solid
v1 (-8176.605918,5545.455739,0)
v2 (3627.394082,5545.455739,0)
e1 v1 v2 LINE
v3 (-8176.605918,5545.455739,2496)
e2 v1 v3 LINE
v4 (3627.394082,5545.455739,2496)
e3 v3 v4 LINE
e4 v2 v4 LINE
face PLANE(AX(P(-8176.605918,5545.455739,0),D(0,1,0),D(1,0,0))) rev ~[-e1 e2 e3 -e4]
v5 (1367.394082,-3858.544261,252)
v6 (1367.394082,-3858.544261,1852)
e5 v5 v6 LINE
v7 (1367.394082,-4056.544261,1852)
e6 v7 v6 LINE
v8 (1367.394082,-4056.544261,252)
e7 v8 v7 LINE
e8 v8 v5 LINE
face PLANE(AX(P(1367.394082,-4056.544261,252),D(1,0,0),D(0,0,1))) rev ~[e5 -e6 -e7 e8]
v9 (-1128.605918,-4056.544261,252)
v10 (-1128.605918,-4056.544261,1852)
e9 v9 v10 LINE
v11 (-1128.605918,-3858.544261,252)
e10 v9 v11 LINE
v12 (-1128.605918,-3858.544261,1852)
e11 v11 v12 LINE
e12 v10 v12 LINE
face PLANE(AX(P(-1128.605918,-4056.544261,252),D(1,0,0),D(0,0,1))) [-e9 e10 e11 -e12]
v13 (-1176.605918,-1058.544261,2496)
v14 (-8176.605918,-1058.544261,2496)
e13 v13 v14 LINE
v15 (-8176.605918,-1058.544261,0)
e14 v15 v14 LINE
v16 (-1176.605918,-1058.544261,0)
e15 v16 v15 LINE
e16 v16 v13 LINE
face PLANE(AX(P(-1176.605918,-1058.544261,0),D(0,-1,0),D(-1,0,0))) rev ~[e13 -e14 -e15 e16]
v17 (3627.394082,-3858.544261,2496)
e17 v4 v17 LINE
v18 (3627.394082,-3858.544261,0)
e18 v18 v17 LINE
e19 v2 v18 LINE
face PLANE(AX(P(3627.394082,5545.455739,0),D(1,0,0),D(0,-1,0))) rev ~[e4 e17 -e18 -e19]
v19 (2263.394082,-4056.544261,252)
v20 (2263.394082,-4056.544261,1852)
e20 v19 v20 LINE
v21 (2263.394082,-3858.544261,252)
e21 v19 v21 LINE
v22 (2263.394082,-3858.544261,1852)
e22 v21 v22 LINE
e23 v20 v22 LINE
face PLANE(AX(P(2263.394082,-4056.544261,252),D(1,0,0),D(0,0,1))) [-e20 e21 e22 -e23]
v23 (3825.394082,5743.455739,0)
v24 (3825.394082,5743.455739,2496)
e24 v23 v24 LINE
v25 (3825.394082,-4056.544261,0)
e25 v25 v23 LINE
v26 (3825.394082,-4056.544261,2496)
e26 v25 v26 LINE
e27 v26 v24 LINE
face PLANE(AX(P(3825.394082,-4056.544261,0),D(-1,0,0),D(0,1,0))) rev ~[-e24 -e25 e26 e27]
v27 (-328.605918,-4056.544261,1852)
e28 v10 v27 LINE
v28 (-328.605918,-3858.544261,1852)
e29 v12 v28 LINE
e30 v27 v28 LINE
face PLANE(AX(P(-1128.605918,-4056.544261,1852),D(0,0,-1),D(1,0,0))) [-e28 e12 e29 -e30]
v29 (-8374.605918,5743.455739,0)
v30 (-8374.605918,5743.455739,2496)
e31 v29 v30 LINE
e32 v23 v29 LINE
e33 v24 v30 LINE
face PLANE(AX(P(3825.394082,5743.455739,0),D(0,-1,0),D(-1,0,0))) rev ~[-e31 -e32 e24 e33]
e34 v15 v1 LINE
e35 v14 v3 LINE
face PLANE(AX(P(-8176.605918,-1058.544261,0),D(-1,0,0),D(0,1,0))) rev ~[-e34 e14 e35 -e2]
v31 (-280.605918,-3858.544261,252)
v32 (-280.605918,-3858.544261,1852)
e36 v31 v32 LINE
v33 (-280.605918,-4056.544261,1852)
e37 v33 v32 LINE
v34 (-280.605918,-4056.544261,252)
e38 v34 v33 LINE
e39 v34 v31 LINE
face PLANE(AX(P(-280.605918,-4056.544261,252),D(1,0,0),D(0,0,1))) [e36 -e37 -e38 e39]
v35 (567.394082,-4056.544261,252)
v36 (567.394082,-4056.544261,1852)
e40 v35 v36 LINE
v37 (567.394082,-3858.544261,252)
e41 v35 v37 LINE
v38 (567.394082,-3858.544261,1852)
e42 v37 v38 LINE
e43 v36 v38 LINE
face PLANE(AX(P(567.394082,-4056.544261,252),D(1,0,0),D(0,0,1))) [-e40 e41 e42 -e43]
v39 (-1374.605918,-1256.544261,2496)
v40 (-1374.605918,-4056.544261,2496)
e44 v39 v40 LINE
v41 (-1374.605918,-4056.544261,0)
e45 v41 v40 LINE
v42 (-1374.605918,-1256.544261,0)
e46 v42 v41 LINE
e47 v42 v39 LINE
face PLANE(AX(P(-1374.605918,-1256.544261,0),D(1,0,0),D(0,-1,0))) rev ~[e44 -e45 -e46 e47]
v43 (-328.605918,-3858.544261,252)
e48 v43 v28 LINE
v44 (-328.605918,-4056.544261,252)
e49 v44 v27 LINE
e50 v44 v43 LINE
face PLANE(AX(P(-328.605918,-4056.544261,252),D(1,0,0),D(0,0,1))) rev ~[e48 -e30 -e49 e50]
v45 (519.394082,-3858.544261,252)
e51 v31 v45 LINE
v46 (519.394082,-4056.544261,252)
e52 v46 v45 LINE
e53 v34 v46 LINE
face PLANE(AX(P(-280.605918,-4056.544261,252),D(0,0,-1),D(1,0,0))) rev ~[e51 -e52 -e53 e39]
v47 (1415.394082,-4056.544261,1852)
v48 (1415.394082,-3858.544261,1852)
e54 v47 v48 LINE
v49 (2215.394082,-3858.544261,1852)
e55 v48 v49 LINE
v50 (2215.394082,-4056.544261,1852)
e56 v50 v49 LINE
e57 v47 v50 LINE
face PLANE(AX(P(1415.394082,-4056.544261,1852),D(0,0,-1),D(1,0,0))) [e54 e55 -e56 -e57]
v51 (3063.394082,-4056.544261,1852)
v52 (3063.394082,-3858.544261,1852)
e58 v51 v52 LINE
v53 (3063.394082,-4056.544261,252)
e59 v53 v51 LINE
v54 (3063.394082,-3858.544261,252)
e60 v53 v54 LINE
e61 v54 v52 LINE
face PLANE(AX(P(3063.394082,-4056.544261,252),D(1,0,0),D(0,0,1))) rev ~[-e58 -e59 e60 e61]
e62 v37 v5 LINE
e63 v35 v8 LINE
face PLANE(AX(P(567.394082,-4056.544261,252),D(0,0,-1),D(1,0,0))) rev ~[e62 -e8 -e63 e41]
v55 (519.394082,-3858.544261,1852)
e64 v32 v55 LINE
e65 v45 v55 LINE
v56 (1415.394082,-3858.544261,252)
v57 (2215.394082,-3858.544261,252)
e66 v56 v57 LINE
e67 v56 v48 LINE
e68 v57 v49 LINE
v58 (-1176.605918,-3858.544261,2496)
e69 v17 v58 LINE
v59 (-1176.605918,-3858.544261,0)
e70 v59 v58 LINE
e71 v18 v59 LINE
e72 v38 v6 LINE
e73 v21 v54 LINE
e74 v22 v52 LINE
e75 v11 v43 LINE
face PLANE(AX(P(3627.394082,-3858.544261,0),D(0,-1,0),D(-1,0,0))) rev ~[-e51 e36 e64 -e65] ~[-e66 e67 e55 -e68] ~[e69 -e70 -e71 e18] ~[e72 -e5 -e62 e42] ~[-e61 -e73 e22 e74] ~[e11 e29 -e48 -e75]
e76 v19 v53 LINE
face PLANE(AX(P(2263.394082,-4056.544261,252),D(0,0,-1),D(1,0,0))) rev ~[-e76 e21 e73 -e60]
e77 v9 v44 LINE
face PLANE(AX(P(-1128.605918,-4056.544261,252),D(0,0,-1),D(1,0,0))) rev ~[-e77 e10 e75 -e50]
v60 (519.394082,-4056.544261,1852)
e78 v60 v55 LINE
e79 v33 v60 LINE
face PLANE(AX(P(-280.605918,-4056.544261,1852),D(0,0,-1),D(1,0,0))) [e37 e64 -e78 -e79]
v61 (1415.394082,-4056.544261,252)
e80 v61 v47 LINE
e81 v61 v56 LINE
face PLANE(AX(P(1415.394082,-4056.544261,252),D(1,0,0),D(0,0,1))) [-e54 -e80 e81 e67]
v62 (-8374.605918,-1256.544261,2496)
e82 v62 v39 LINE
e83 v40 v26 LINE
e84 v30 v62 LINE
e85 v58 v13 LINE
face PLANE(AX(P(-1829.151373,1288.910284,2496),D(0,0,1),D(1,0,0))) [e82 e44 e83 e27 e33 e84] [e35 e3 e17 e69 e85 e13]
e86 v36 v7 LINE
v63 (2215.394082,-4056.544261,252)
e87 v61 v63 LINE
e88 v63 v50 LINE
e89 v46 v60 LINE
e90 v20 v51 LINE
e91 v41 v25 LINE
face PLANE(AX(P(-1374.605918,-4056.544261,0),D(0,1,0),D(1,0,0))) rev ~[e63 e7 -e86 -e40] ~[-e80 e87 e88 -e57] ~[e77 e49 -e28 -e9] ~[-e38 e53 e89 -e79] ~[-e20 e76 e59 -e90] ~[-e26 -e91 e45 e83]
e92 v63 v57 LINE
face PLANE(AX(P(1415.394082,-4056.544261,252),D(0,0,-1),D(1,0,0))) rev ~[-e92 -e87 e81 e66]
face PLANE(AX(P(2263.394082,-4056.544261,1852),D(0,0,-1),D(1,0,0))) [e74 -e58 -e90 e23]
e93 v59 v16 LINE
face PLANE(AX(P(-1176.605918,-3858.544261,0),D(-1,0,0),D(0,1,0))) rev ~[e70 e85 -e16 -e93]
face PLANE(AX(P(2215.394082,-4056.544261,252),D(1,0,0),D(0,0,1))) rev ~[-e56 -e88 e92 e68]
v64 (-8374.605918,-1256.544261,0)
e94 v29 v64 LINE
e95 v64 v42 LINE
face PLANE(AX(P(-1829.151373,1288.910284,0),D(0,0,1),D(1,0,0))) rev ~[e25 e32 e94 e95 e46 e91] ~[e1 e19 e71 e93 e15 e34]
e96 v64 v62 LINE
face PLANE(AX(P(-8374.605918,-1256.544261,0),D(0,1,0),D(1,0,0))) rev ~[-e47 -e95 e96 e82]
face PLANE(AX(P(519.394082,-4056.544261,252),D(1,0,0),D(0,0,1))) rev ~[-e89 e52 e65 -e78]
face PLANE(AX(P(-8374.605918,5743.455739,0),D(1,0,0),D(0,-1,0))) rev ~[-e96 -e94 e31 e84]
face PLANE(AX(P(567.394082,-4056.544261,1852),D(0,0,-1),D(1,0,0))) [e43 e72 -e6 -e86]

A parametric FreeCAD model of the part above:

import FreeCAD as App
import Part
import Sketcher
from FreeCAD import Vector
Q = App.Units.Quantity


def add_polygon(sketch, points):
    """Adds a closed chain of lines whose ends are joined by coincident constraints."""
    first, n = sketch.GeometryCount, len(points)
    for a, b in zip(points, points[1:] + points[:1]):
        sketch.addGeometry(Part.LineSegment(App.Vector(*a, 0), App.Vector(*b, 0)), False)
    for i in range(n):
        sketch.addConstraint(Sketcher.Constraint("Coincident", first + i, 2, first + (i + 1) % n, 1))

doc = App.newDocument("Part")
body = doc.addObject("PartDesign::Body", "Body")

# Sketch on XY plane
sketch1 = body.newObject("Sketcher::SketchObject", "Sketch")
sketch1.AttachmentSupport = (doc.getObject("XY_Plane"), [""])
sketch1.MapMode = "FlatFace"
add_polygon(sketch1, [(-1374.605918, -1256.544261), (-1374.605918, -4056.544261), (3825.394082, -4056.544261), (3825.394082, 5743.455739), (-8374.605918, 5743.455739), (-8374.605918, -1256.544261)])  # lines 0-5
add_polygon(sketch1, [(-1176.605918, -3858.544261), (-1176.605918, -1058.544261), (-8176.605918, -1058.544261), (-8176.605918, 5545.455739), (3627.394082, 5545.455739), (3627.394082, -3858.544261)])  # lines 6-11
sketch1.addConstraint(Sketcher.Constraint("Vertical", 0))
sketch1.addConstraint(Sketcher.Constraint("Horizontal", 1))
sketch1.addConstraint(Sketcher.Constraint("Vertical", 2))
sketch1.addConstraint(Sketcher.Constraint("Horizontal", 3))
sketch1.addConstraint(Sketcher.Constraint("Vertical", 4))
sketch1.addConstraint(Sketcher.Constraint("Horizontal", 5))
sketch1.addConstraint(Sketcher.Constraint("Vertical", 6))
sketch1.addConstraint(Sketcher.Constraint("Horizontal", 7))
sketch1.addConstraint(Sketcher.Constraint("Vertical", 8))
sketch1.addConstraint(Sketcher.Constraint("Horizontal", 9))
sketch1.addConstraint(Sketcher.Constraint("Vertical", 10))
sketch1.addConstraint(Sketcher.Constraint("Horizontal", 11))
sketch1.addConstraint(Sketcher.Constraint("Equal", 5, 7))
sketch1.addConstraint(Sketcher.Constraint("Equal", 7, 4))
sketch1.addConstraint(Sketcher.Constraint("Equal", 0, 6))
sketch1.addConstraint(Sketcher.Constraint("DistanceX", 1, 1, 1, 2, Q("5200 mm")))
sketch1.addConstraint(Sketcher.Constraint("DistanceX", 3, 2, 3, 1, Q("12200 mm")))
sketch1.addConstraint(Sketcher.Constraint("DistanceX", 9, 1, 9, 2, Q("11804 mm")))
sketch1.addConstraint(Sketcher.Constraint("DistanceY", 0, 2, 0, 1, Q("2800 mm")))
sketch1.addConstraint(Sketcher.Constraint("DistanceY", 8, 1, 8, 2, Q("6604 mm")))
sketch1.addConstraint(Sketcher.Constraint("DistanceX", 5, 2, 6, 2, Q("198 mm")))
sketch1.addConstraint(Sketcher.Constraint("DistanceY", 5, 2, 6, 2, Q("198 mm")))
sketch1.addConstraint(Sketcher.Constraint("DistanceX", 0, 2, -1, 1, Q("1374.605918 mm")))
sketch1.addConstraint(Sketcher.Constraint("DistanceY", 0, 2, -1, 1, Q("4056.544261 mm")))
pad1 = body.newObject("PartDesign::Pad", "Pad")
pad1.Profile = sketch1
pad1.Length = 2496

# Sketch on XZ plane
sketch2 = body.newObject("Sketcher::SketchObject", "Sketch001")
sketch2.AttachmentSupport = (doc.getObject("XZ_Plane"), [""])
sketch2.MapMode = "FlatFace"
sketch2.AttachmentOffset = App.Placement(Vector(0, 0, 4056.544261), App.Rotation())
add_polygon(sketch2, [(-280.605918, 1852), (-280.605918, 252), (519.394082, 252), (519.394082, 1852)])  # lines 0-3
add_polygon(sketch2, [(-1128.605918, 1852), (-1128.605918, 252), (-328.605918, 252), (-328.605918, 1852)])  # lines 4-7
add_polygon(sketch2, [(567.394082, 1852), (567.394082, 252), (1367.394082, 252), (1367.394082, 1852)])  # lines 8-11
add_polygon(sketch2, [(1415.394082, 1852), (1415.394082, 252), (2215.394082, 252), (2215.394082, 1852)])  # lines 12-15
add_polygon(sketch2, [(2263.394082, 1852), (2263.394082, 252), (3063.394082, 252), (3063.394082, 1852)])  # lines 16-19
sketch2.addConstraint(Sketcher.Constraint("Vertical", 0))
sketch2.addConstraint(Sketcher.Constraint("Horizontal", 1))
sketch2.addConstraint(Sketcher.Constraint("Vertical", 2))
sketch2.addConstraint(Sketcher.Constraint("Horizontal", 3))
sketch2.addConstraint(Sketcher.Constraint("Vertical", 4))
sketch2.addConstraint(Sketcher.Constraint("Horizontal", 5))
sketch2.addConstraint(Sketcher.Constraint("Vertical", 6))
sketch2.addConstraint(Sketcher.Constraint("Horizontal", 7))
sketch2.addConstraint(Sketcher.Constraint("Vertical", 8))
sketch2.addConstraint(Sketcher.Constraint("Horizontal", 9))
sketch2.addConstraint(Sketcher.Constraint("Vertical", 10))
sketch2.addConstraint(Sketcher.Constraint("Horizontal", 11))
sketch2.addConstraint(Sketcher.Constraint("Vertical", 12))
sketch2.addConstraint(Sketcher.Constraint("Horizontal", 13))
sketch2.addConstraint(Sketcher.Constraint("Vertical", 14))
sketch2.addConstraint(Sketcher.Constraint("Horizontal", 15))
sketch2.addConstraint(Sketcher.Constraint("Vertical", 16))
sketch2.addConstraint(Sketcher.Constraint("Horizontal", 17))
sketch2.addConstraint(Sketcher.Constraint("Vertical", 18))
sketch2.addConstraint(Sketcher.Constraint("Horizontal", 19))
sketch2.addConstraint(Sketcher.Constraint("Horizontal", 1, 2, 4, 2))
sketch2.addConstraint(Sketcher.Constraint("Horizontal", 3, 2, 6, 2))
sketch2.addConstraint(Sketcher.Constraint("Horizontal", 5, 2, 8, 2))
sketch2.addConstraint(Sketcher.Constraint("Horizontal", 7, 2, 10, 2))
sketch2.addConstraint(Sketcher.Constraint("Horizontal", 9, 2, 12, 2))
sketch2.addConstraint(Sketcher.Constraint("Horizontal", 11, 2, 14, 2))
sketch2.addConstraint(Sketcher.Constraint("Horizontal", 13, 2, 16, 2))
sketch2.addConstraint(Sketcher.Constraint("Horizontal", 15, 2, 18, 2))
sketch2.addConstraint(Sketcher.Constraint("Equal", 3, 5))
sketch2.addConstraint(Sketcher.Constraint("Equal", 7, 9))
sketch2.addConstraint(Sketcher.Constraint("Equal", 11, 13))
sketch2.addConstraint(Sketcher.Constraint("Equal", 15, 17))
sketch2.addConstraint(Sketcher.Constraint("DistanceX", 1, 1, 1, 2, Q("800 mm")))
sketch2.addConstraint(Sketcher.Constraint("DistanceY", 0, 2, 0, 1, Q("1600 mm")))
sketch2.addConstraint(Sketcher.Constraint("DistanceY", -1, 1, 0, 2, Q("252 mm")))
sketch2.addConstraint(Sketcher.Constraint("DistanceX", 4, 2, 0, 2, Q("848 mm")))
sketch2.addConstraint(Sketcher.Constraint("DistanceX", 1, 2, 8, 2, Q("48 mm")))
sketch2.addConstraint(Sketcher.Constraint("DistanceX", 9, 2, 12, 2, Q("48 mm")))
sketch2.addConstraint(Sketcher.Constraint("DistanceX", 13, 2, 16, 2, Q("48 mm")))
sketch2.addConstraint(Sketcher.Constraint("DistanceX", -1, 1, 1, 2, Q("519.394082 mm")))
pocket1 = body.newObject("PartDesign::Pocket", "Pocket")
pocket1.Profile = sketch2
pocket1.Length = 200

doc.recompute()
